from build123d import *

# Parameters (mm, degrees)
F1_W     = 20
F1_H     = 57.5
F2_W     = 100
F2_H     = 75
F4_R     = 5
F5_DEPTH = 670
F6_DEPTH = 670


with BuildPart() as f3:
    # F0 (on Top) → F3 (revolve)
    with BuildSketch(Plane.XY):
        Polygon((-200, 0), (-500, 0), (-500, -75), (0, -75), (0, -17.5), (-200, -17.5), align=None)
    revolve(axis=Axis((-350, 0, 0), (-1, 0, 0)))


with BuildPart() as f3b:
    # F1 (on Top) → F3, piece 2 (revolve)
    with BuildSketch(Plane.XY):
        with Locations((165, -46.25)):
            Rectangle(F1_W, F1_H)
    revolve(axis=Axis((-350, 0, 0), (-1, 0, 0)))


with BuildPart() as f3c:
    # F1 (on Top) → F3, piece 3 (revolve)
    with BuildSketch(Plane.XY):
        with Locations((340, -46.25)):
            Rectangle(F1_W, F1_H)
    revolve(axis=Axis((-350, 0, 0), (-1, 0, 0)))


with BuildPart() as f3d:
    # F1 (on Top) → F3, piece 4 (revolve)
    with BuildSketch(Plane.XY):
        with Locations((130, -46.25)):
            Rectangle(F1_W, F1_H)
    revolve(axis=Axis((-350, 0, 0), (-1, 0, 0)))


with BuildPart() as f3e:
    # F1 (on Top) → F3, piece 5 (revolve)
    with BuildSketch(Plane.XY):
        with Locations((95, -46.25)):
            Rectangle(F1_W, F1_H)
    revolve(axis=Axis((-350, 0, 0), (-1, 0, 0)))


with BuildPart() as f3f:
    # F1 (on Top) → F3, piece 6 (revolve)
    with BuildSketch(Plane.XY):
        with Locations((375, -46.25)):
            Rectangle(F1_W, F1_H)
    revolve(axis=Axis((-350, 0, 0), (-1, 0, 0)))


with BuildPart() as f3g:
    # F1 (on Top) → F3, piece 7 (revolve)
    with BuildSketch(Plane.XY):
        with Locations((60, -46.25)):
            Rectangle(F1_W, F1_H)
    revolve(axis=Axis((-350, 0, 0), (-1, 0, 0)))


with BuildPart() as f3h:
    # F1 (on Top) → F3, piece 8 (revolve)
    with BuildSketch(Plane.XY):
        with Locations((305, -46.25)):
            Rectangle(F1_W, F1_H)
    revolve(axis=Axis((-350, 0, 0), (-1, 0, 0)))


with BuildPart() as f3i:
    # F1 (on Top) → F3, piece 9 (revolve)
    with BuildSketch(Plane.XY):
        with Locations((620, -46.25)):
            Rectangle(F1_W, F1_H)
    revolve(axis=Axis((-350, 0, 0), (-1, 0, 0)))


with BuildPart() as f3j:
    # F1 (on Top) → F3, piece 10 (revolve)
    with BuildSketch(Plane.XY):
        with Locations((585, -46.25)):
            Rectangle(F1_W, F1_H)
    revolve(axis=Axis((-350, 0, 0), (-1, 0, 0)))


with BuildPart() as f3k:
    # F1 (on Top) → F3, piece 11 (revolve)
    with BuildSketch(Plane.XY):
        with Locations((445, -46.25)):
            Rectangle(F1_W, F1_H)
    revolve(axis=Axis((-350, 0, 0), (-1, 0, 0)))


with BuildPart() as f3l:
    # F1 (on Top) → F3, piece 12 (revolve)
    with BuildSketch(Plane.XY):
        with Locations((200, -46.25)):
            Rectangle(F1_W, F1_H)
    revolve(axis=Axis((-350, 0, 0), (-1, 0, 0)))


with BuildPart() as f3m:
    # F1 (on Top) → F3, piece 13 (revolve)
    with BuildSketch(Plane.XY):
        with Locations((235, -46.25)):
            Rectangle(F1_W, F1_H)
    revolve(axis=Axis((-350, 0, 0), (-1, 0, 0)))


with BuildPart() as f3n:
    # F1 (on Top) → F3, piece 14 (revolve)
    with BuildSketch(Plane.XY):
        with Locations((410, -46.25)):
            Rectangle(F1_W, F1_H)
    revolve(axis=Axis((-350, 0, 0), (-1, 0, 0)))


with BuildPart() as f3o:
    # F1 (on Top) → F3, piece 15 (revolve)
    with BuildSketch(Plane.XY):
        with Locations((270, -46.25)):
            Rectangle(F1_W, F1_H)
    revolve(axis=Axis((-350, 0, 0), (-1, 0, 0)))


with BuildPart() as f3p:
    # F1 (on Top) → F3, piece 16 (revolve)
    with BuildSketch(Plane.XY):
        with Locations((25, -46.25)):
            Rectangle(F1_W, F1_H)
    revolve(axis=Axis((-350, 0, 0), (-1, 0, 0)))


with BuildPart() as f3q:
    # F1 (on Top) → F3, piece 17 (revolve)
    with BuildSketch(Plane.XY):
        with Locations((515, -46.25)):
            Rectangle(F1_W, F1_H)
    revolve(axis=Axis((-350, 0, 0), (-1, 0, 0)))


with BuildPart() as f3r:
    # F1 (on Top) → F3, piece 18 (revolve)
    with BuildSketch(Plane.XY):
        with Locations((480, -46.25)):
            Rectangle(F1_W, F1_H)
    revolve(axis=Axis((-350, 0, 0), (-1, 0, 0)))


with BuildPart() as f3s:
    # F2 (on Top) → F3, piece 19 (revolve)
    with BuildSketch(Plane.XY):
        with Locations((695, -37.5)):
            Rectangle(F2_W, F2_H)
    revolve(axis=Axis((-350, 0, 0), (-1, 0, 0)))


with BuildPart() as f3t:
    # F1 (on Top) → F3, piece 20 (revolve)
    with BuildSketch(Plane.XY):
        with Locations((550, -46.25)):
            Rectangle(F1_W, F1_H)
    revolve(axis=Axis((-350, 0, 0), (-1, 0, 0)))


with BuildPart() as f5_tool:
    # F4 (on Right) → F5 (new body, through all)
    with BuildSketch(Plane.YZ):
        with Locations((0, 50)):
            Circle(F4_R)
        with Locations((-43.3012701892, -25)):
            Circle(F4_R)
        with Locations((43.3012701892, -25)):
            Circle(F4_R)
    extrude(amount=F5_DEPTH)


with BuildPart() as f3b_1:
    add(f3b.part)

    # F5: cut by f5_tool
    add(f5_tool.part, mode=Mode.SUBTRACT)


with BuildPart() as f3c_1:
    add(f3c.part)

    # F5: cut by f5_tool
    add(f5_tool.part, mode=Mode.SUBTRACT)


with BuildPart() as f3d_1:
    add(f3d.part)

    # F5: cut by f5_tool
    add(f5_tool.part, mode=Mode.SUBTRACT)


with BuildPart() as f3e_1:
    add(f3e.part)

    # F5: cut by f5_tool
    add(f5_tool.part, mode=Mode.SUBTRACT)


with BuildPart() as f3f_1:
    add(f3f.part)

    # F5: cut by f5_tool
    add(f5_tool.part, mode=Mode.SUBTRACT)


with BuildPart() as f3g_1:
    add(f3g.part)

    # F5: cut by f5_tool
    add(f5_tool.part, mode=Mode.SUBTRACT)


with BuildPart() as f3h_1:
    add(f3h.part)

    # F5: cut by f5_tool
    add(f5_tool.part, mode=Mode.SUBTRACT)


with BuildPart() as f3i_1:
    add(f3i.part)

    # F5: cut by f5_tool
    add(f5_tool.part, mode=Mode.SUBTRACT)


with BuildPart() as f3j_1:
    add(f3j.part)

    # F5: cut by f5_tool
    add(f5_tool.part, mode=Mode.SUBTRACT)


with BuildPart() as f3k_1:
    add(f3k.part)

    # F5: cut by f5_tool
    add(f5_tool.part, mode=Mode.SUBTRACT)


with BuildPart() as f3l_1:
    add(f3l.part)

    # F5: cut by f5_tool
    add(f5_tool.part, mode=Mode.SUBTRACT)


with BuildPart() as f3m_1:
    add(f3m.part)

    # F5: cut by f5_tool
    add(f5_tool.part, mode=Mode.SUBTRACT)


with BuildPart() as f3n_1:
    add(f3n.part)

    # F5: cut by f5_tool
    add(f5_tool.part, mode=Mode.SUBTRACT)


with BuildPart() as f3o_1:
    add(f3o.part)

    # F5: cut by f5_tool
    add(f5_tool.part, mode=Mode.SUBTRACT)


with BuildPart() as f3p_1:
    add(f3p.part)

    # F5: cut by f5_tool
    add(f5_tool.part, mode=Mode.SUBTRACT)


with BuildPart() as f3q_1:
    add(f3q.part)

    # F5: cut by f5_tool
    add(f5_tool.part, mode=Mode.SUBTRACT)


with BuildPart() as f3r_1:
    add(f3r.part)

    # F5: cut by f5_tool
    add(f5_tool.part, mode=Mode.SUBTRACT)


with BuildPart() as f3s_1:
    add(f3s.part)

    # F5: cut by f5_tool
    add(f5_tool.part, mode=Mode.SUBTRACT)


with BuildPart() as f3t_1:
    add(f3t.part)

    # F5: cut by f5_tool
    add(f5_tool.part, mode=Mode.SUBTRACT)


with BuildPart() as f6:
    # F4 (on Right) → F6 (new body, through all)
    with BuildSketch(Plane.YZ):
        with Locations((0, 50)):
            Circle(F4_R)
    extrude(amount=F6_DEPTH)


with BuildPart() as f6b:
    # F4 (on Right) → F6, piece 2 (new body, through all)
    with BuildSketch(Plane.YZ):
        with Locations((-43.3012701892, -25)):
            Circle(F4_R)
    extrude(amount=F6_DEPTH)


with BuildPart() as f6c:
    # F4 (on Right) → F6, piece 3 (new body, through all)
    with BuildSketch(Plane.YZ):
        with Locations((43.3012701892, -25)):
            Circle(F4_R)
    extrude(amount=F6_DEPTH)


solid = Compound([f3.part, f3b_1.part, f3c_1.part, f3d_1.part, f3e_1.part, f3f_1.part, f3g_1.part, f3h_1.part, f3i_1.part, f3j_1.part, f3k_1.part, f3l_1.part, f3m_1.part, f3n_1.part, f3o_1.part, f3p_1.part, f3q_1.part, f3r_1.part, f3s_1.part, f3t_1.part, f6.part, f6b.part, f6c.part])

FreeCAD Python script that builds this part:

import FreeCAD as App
import Part
import Sketcher
from FreeCAD import Vector

doc = App.newDocument("Part")
body = doc.addObject("PartDesign::Body", "Body")

# Sketch on XY plane
sketch1 = body.newObject("Sketcher::SketchObject", "Sketch")
sketch1.AttachmentSupport = (doc.getObject("XY_Plane"), [""])
sketch1.MapMode = "FlatFace"
sketch1.addGeometry([
    Part.LineSegment(Vector(-200, 0, 0), Vector(-500, 0, 0)),  # 0
    Part.LineSegment(Vector(-500, 0, 0), Vector(-500, -75, 0)),  # 1
    Part.LineSegment(Vector(-500, -75, 0), Vector(0, -75, 0)),  # 2
    Part.LineSegment(Vector(0, -75, 0), Vector(0, -17.5, 0)),  # 3
    Part.LineSegment(Vector(0, -17.5, 0), Vector(-200, -17.5, 0)),  # 4
    Part.LineSegment(Vector(-200, -17.5, 0), Vector(-200, 0, 0)),  # 5
], False)
sketch1.addConstraint([
    Sketcher.Constraint("Coincident", 0, 2, 1, 1),
    Sketcher.Constraint("Coincident", 1, 2, 2, 1),
    Sketcher.Constraint("Coincident", 2, 2, 3, 1),
    Sketcher.Constraint("Coincident", 3, 2, 4, 1),
    Sketcher.Constraint("Coincident", 4, 2, 5, 1),
    Sketcher.Constraint("Coincident", 5, 2, 0, 1),
    Sketcher.Constraint("Horizontal", 0),
    Sketcher.Constraint("Vertical", 1),
    Sketcher.Constraint("Horizontal", 2),
    Sketcher.Constraint("Vertical", 3),
    Sketcher.Constraint("Horizontal", 4),
    Sketcher.Constraint("Vertical", 5),
    Sketcher.Constraint("PointOnObject", 0, 2, -1),
    Sketcher.Constraint("PointOnObject", 2, 2, -2),
    Sketcher.Constraint("DistanceX", 0, 2, 0, 1, 300.0),
    Sketcher.Constraint("DistanceX", 2, 1, 2, 2, 500.0),
    Sketcher.Constraint("DistanceY", 1, 2, 1, 1, 75.0),
    Sketcher.Constraint("DistanceY", 3, 1, 3, 2, 57.5),
])
revolution = body.newObject("PartDesign::Revolution", "Revolution")
revolution.Profile = sketch1
revolution.ReferenceAxis = (sketch1, ["H_Axis"])
revolution.Angle = 360
body2 = doc.addObject("PartDesign::Body", "Body001")

# Sketch on XY plane
sketch2 = body2.newObject("Sketcher::SketchObject", "Sketch001")
sketch2.AttachmentSupport = (doc.getObject("XY_Plane001"), [""])
sketch2.MapMode = "FlatFace"
sketch2.addGeometry([
    Part.LineSegment(Vector(155, -17.5, 0), Vector(155, -75, 0)),
    Part.LineSegment(Vector(155, -75, 0), Vector(175, -75, 0)),
    Part.LineSegment(Vector(175, -75, 0), Vector(175, -17.5, 0)),
    Part.LineSegment(Vector(175, -17.5, 0), Vector(155, -17.5, 0)),
], False)
sketch2.addConstraint([
    Sketcher.Constraint("Coincident", 0, 2, 1, 1),
    Sketcher.Constraint("Coincident", 1, 2, 2, 1),
    Sketcher.Constraint("Coincident", 2, 2, 3, 1),
    Sketcher.Constraint("Coincident", 3, 2, 0, 1),
    Sketcher.Constraint("Vertical", 0),
    Sketcher.Constraint("Horizontal", 1),
    Sketcher.Constraint("Vertical", 2),
    Sketcher.Constraint("Horizontal", 3),
    Sketcher.Constraint("DistanceX", 1, 1, 1, 2, 20.0),
    Sketcher.Constraint("DistanceY", 0, 2, 0, 1, 57.5),
    Sketcher.Constraint("DistanceX", -1, 1, 0, 2, 155.0),
    Sketcher.Constraint("DistanceY", 0, 2, -1, 1, 75.0),
])
revolution2 = body2.newObject("PartDesign::Revolution", "Revolution001")
revolution2.Profile = sketch2
revolution2.ReferenceAxis = (sketch2, ["H_Axis"])
revolution2.Angle = 360
body3 = doc.addObject("PartDesign::Body", "Body002")

# Sketch on XY plane
sketch3 = body3.newObject("Sketcher::SketchObject", "Sketch002")
sketch3.AttachmentSupport = (doc.getObject("XY_Plane002"), [""])
sketch3.MapMode = "FlatFace"
sketch3.addGeometry([
    Part.LineSegment(Vector(330, -17.5, 0), Vector(330, -75, 0)),
    Part.LineSegment(Vector(330, -75, 0), Vector(350, -75, 0)),
    Part.LineSegment(Vector(350, -75, 0), Vector(350, -17.5, 0)),
    Part.LineSegment(Vector(350, -17.5, 0), Vector(330, -17.5, 0)),
], False)
sketch3.addConstraint([
    Sketcher.Constraint("Coincident", 0, 2, 1, 1),
    Sketcher.Constraint("Coincident", 1, 2, 2, 1),
    Sketcher.Constraint("Coincident", 2, 2, 3, 1),
    Sketcher.Constraint("Coincident", 3, 2, 0, 1),
    Sketcher.Constraint("Vertical", 0),
    Sketcher.Constraint("Horizontal", 1),
    Sketcher.Constraint("Vertical", 2),
    Sketcher.Constraint("Horizontal", 3),
    Sketcher.Constraint("DistanceX", 1, 1, 1, 2, 20.0),
    Sketcher.Constraint("DistanceY", 0, 2, 0, 1, 57.5),
    Sketcher.Constraint("DistanceX", -1, 1, 0, 2, 330.0),
    Sketcher.Constraint("DistanceY", 0, 2, -1, 1, 75.0),
])
revolution3 = body3.newObject("PartDesign::Revolution", "Revolution002")
revolution3.Profile = sketch3
revolution3.ReferenceAxis = (sketch3, ["H_Axis"])
revolution3.Angle = 360
body4 = doc.addObject("PartDesign::Body", "Body003")

# Sketch on XY plane
sketch4 = body4.newObject("Sketcher::SketchObject", "Sketch003")
sketch4.AttachmentSupport = (doc.getObject("XY_Plane003"), [""])
sketch4.MapMode = "FlatFace"
sketch4.addGeometry([
    Part.LineSegment(Vector(120, -17.5, 0), Vector(120, -75, 0)),
    Part.LineSegment(Vector(120, -75, 0), Vector(140, -75, 0)),
    Part.LineSegment(Vector(140, -75, 0), Vector(140, -17.5, 0)),
    Part.LineSegment(Vector(140, -17.5, 0), Vector(120, -17.5, 0)),
], False)
sketch4.addConstraint([
    Sketcher.Constraint("Coincident", 0, 2, 1, 1),
    Sketcher.Constraint("Coincident", 1, 2, 2, 1),
    Sketcher.Constraint("Coincident", 2, 2, 3, 1),
    Sketcher.Constraint("Coincident", 3, 2, 0, 1),
    Sketcher.Constraint("Vertical", 0),
    Sketcher.Constraint("Horizontal", 1),
    Sketcher.Constraint("Vertical", 2),
    Sketcher.Constraint("Horizontal", 3),
    Sketcher.Constraint("DistanceX", 1, 1, 1, 2, 20.0),
    Sketcher.Constraint("DistanceY", 0, 2, 0, 1, 57.5),
    Sketcher.Constraint("DistanceX", -1, 1, 0, 2, 120.0),
    Sketcher.Constraint("DistanceY", 0, 2, -1, 1, 75.0),
])
revolution4 = body4.newObject("PartDesign::Revolution", "Revolution003")
revolution4.Profile = sketch4
revolution4.ReferenceAxis = (sketch4, ["H_Axis"])
revolution4.Angle = 360
body5 = doc.addObject("PartDesign::Body", "Body004")

# Sketch on XY plane
sketch5 = body5.newObject("Sketcher::SketchObject", "Sketch004")
sketch5.AttachmentSupport = (doc.getObject("XY_Plane004"), [""])
sketch5.MapMode = "FlatFace"
sketch5.addGeometry([
    Part.LineSegment(Vector(85, -17.5, 0), Vector(85, -75, 0)),
    Part.LineSegment(Vector(85, -75, 0), Vector(105, -75, 0)),
    Part.LineSegment(Vector(105, -75, 0), Vector(105, -17.5, 0)),
    Part.LineSegment(Vector(105, -17.5, 0), Vector(85, -17.5, 0)),
], False)
sketch5.addConstraint([
    Sketcher.Constraint("Coincident", 0, 2, 1, 1),
    Sketcher.Constraint("Coincident", 1, 2, 2, 1),
    Sketcher.Constraint("Coincident", 2, 2, 3, 1),
    Sketcher.Constraint("Coincident", 3, 2, 0, 1),
    Sketcher.Constraint("Vertical", 0),
    Sketcher.Constraint("Horizontal", 1),
    Sketcher.Constraint("Vertical", 2),
    Sketcher.Constraint("Horizontal", 3),
    Sketcher.Constraint("DistanceX", 1, 1, 1, 2, 20.0),
    Sketcher.Constraint("DistanceY", 0, 2, 0, 1, 57.5),
    Sketcher.Constraint("DistanceX", -1, 1, 0, 2, 85.0),
    Sketcher.Constraint("DistanceY", 0, 2, -1, 1, 75.0),
])
revolution5 = body5.newObject("PartDesign::Revolution", "Revolution004")
revolution5.Profile = sketch5
revolution5.ReferenceAxis = (sketch5, ["H_Axis"])
revolution5.Angle = 360
body6 = doc.addObject("PartDesign::Body", "Body005")

# Sketch on XY plane
sketch6 = body6.newObject("Sketcher::SketchObject", "Sketch005")
sketch6.AttachmentSupport = (doc.getObject("XY_Plane005"), [""])
sketch6.MapMode = "FlatFace"
sketch6.addGeometry([
    Part.LineSegment(Vector(365, -17.5, 0), Vector(365, -75, 0)),
    Part.LineSegment(Vector(365, -75, 0), Vector(385, -75, 0)),
    Part.LineSegment(Vector(385, -75, 0), Vector(385, -17.5, 0)),
    Part.LineSegment(Vector(385, -17.5, 0), Vector(365, -17.5, 0)),
], False)
sketch6.addConstraint([
    Sketcher.Constraint("Coincident", 0, 2, 1, 1),
    Sketcher.Constraint("Coincident", 1, 2, 2, 1),
    Sketcher.Constraint("Coincident", 2, 2, 3, 1),
    Sketcher.Constraint("Coincident", 3, 2, 0, 1),
    Sketcher.Constraint("Vertical", 0),
    Sketcher.Constraint("Horizontal", 1),
    Sketcher.Constraint("Vertical", 2),
    Sketcher.Constraint("Horizontal", 3),
    Sketcher.Constraint("DistanceX", 1, 1, 1, 2, 20.0),
    Sketcher.Constraint("DistanceY", 0, 2, 0, 1, 57.5),
    Sketcher.Constraint("DistanceX", -1, 1, 0, 2, 365.0),
    Sketcher.Constraint("DistanceY", 0, 2, -1, 1, 75.0),
])
revolution6 = body6.newObject("PartDesign::Revolution", "Revolution005")
revolution6.Profile = sketch6
revolution6.ReferenceAxis = (sketch6, ["H_Axis"])
revolution6.Angle = 360
body7 = doc.addObject("PartDesign::Body", "Body006")

# Sketch on XY plane
sketch7 = body7.newObject("Sketcher::SketchObject", "Sketch006")
sketch7.AttachmentSupport = (doc.getObject("XY_Plane006"), [""])
sketch7.MapMode = "FlatFace"
sketch7.addGeometry([
    Part.LineSegment(Vector(50, -17.5, 0), Vector(50, -75, 0)),
    Part.LineSegment(Vector(50, -75, 0), Vector(70, -75, 0)),
    Part.LineSegment(Vector(70, -75, 0), Vector(70, -17.5, 0)),
    Part.LineSegment(Vector(70, -17.5, 0), Vector(50, -17.5, 0)),
], False)
sketch7.addConstraint([
    Sketcher.Constraint("Coincident", 0, 2, 1, 1),
    Sketcher.Constraint("Coincident", 1, 2, 2, 1),
    Sketcher.Constraint("Coincident", 2, 2, 3, 1),
    Sketcher.Constraint("Coincident", 3, 2, 0, 1),
    Sketcher.Constraint("Vertical", 0),
    Sketcher.Constraint("Horizontal", 1),
    Sketcher.Constraint("Vertical", 2),
    Sketcher.Constraint("Horizontal", 3),
    Sketcher.Constraint("DistanceX", 1, 1, 1, 2, 20.0),
    Sketcher.Constraint("DistanceY", 0, 2, 0, 1, 57.5),
    Sketcher.Constraint("DistanceX", -1, 1, 0, 2, 50.0),
    Sketcher.Constraint("DistanceY", 0, 2, -1, 1, 75.0),
])
revolution7 = body7.newObject("PartDesign::Revolution", "Revolution006")
revolution7.Profile = sketch7
revolution7.ReferenceAxis = (sketch7, ["H_Axis"])
revolution7.Angle = 360
body8 = doc.addObject("PartDesign::Body", "Body007")

# Sketch on XY plane
sketch8 = body8.newObject("Sketcher::SketchObject", "Sketch007")
sketch8.AttachmentSupport = (doc.getObject("XY_Plane007"), [""])
sketch8.MapMode = "FlatFace"
sketch8.addGeometry([
    Part.LineSegment(Vector(295, -17.5, 0), Vector(295, -75, 0)),
    Part.LineSegment(Vector(295, -75, 0), Vector(315, -75, 0)),
    Part.LineSegment(Vector(315, -75, 0), Vector(315, -17.5, 0)),
    Part.LineSegment(Vector(315, -17.5, 0), Vector(295, -17.5, 0)),
], False)
sketch8.addConstraint([
    Sketcher.Constraint("Coincident", 0, 2, 1, 1),
    Sketcher.Constraint("Coincident", 1, 2, 2, 1),
    Sketcher.Constraint("Coincident", 2, 2, 3, 1),
    Sketcher.Constraint("Coincident", 3, 2, 0, 1),
    Sketcher.Constraint("Vertical", 0),
    Sketcher.Constraint("Horizontal", 1),
    Sketcher.Constraint("Vertical", 2),
    Sketcher.Constraint("Horizontal", 3),
    Sketcher.Constraint("DistanceX", 1, 1, 1, 2, 20.0),
    Sketcher.Constraint("DistanceY", 0, 2, 0, 1, 57.5),
    Sketcher.Constraint("DistanceX", -1, 1, 0, 2, 295.0),
    Sketcher.Constraint("DistanceY", 0, 2, -1, 1, 75.0),
])
revolution8 = body8.newObject("PartDesign::Revolution", "Revolution007")
revolution8.Profile = sketch8
revolution8.ReferenceAxis = (sketch8, ["H_Axis"])
revolution8.Angle = 360
body9 = doc.addObject("PartDesign::Body", "Body008")

# Sketch on XY plane
sketch9 = body9.newObject("Sketcher::SketchObject", "Sketch008")
sketch9.AttachmentSupport = (doc.getObject("XY_Plane008"), [""])
sketch9.MapMode = "FlatFace"
sketch9.addGeometry([
    Part.LineSegment(Vector(610, -17.5, 0), Vector(610, -75, 0)),
    Part.LineSegment(Vector(610, -75, 0), Vector(630, -75, 0)),
    Part.LineSegment(Vector(630, -75, 0), Vector(630, -17.5, 0)),
    Part.LineSegment(Vector(630, -17.5, 0), Vector(610, -17.5, 0)),
], False)
sketch9.addConstraint([
    Sketcher.Constraint("Coincident", 0, 2, 1, 1),
    Sketcher.Constraint("Coincident", 1, 2, 2, 1),
    Sketcher.Constraint("Coincident", 2, 2, 3, 1),
    Sketcher.Constraint("Coincident", 3, 2, 0, 1),
    Sketcher.Constraint("Vertical", 0),
    Sketcher.Constraint("Horizontal", 1),
    Sketcher.Constraint("Vertical", 2),
    Sketcher.Constraint("Horizontal", 3),
    Sketcher.Constraint("DistanceX", 1, 1, 1, 2, 20.0),
    Sketcher.Constraint("DistanceY", 0, 2, 0, 1, 57.5),
    Sketcher.Constraint("DistanceX", -1, 1, 0, 2, 610.0),
    Sketcher.Constraint("DistanceY", 0, 2, -1, 1, 75.0),
])
revolution9 = body9.newObject("PartDesign::Revolution", "Revolution008")
revolution9.Profile = sketch9
revolution9.ReferenceAxis = (sketch9, ["H_Axis"])
revolution9.Angle = 360
body10 = doc.addObject("PartDesign::Body", "Body009")

# Sketch on XY plane
sketch10 = body10.newObject("Sketcher::SketchObject", "Sketch009")
sketch10.AttachmentSupport = (doc.getObject("XY_Plane009"), [""])
sketch10.MapMode = "FlatFace"
sketch10.addGeometry([
    Part.LineSegment(Vector(575, -17.5, 0), Vector(575, -75, 0)),
    Part.LineSegment(Vector(575, -75, 0), Vector(595, -75, 0)),
    Part.LineSegment(Vector(595, -75, 0), Vector(595, -17.5, 0)),
    Part.LineSegment(Vector(595, -17.5, 0), Vector(575, -17.5, 0)),
], False)
sketch10.addConstraint([
    Sketcher.Constraint("Coincident", 0, 2, 1, 1),
    Sketcher.Constraint("Coincident", 1, 2, 2, 1),
    Sketcher.Constraint("Coincident", 2, 2, 3, 1),
    Sketcher.Constraint("Coincident", 3, 2, 0, 1),
    Sketcher.Constraint("Vertical", 0),
    Sketcher.Constraint("Horizontal", 1),
    Sketcher.Constraint("Vertical", 2),
    Sketcher.Constraint("Horizontal", 3),
    Sketcher.Constraint("DistanceX", 1, 1, 1, 2, 20.0),
    Sketcher.Constraint("DistanceY", 0, 2, 0, 1, 57.5),
    Sketcher.Constraint("DistanceX", -1, 1, 0, 2, 575.0),
    Sketcher.Constraint("DistanceY", 0, 2, -1, 1, 75.0),
])
revolution10 = body10.newObject("PartDesign::Revolution", "Revolution009")
revolution10.Profile = sketch10
revolution10.ReferenceAxis = (sketch10, ["H_Axis"])
revolution10.Angle = 360
body11 = doc.addObject("PartDesign::Body", "Body010")

# Sketch on XY plane
sketch11 = body11.newObject("Sketcher::SketchObject", "Sketch010")
sketch11.AttachmentSupport = (doc.getObject("XY_Plane010"), [""])
sketch11.MapMode = "FlatFace"
sketch11.addGeometry([
    Part.LineSegment(Vector(435, -17.5, 0), Vector(435, -75, 0)),
    Part.LineSegment(Vector(435, -75, 0), Vector(455, -75, 0)),
    Part.LineSegment(Vector(455, -75, 0), Vector(455, -17.5, 0)),
    Part.LineSegment(Vector(455, -17.5, 0), Vector(435, -17.5, 0)),
], False)
sketch11.addConstraint([
    Sketcher.Constraint("Coincident", 0, 2, 1, 1),
    Sketcher.Constraint("Coincident", 1, 2, 2, 1),
    Sketcher.Constraint("Coincident", 2, 2, 3, 1),
    Sketcher.Constraint("Coincident", 3, 2, 0, 1),
    Sketcher.Constraint("Vertical", 0),
    Sketcher.Constraint("Horizontal", 1),
    Sketcher.Constraint("Vertical", 2),
    Sketcher.Constraint("Horizontal", 3),
    Sketcher.Constraint("DistanceX", 1, 1, 1, 2, 20.0),
    Sketcher.Constraint("DistanceY", 0, 2, 0, 1, 57.5),
    Sketcher.Constraint("DistanceX", -1, 1, 0, 2, 435.0),
    Sketcher.Constraint("DistanceY", 0, 2, -1, 1, 75.0),
])
revolution11 = body11.newObject("PartDesign::Revolution", "Revolution010")
revolution11.Profile = sketch11
revolution11.ReferenceAxis = (sketch11, ["H_Axis"])
revolution11.Angle = 360
body12 = doc.addObject("PartDesign::Body", "Body011")

# Sketch on XY plane
sketch12 = body12.newObject("Sketcher::SketchObject", "Sketch011")
sketch12.AttachmentSupport = (doc.getObject("XY_Plane011"), [""])
sketch12.MapMode = "FlatFace"
sketch12.addGeometry([
    Part.LineSegment(Vector(190, -17.5, 0), Vector(190, -75, 0)),
    Part.LineSegment(Vector(190, -75, 0), Vector(210, -75, 0)),
    Part.LineSegment(Vector(210, -75, 0), Vector(210, -17.5, 0)),
    Part.LineSegment(Vector(210, -17.5, 0), Vector(190, -17.5, 0)),
], False)
sketch12.addConstraint([
    Sketcher.Constraint("Coincident", 0, 2, 1, 1),
    Sketcher.Constraint("Coincident", 1, 2, 2, 1),
    Sketcher.Constraint("Coincident", 2, 2, 3, 1),
    Sketcher.Constraint("Coincident", 3, 2, 0, 1),
    Sketcher.Constraint("Vertical", 0),
    Sketcher.Constraint("Horizontal", 1),
    Sketcher.Constraint("Vertical", 2),
    Sketcher.Constraint("Horizontal", 3),
    Sketcher.Constraint("DistanceX", 1, 1, 1, 2, 20.0),
    Sketcher.Constraint("DistanceY", 0, 2, 0, 1, 57.5),
    Sketcher.Constraint("DistanceX", -1, 1, 0, 2, 190.0),
    Sketcher.Constraint("DistanceY", 0, 2, -1, 1, 75.0),
])
revolution12 = body12.newObject("PartDesign::Revolution", "Revolution011")
revolution12.Profile = sketch12
revolution12.ReferenceAxis = (sketch12, ["H_Axis"])
revolution12.Angle = 360
body13 = doc.addObject("PartDesign::Body", "Body012")

# Sketch on XY plane
sketch13 = body13.newObject("Sketcher::SketchObject", "Sketch012")
sketch13.AttachmentSupport = (doc.getObject("XY_Plane012"), [""])
sketch13.MapMode = "FlatFace"
sketch13.addGeometry([
    Part.LineSegment(Vector(225, -17.5, 0), Vector(225, -75, 0)),
    Part.LineSegment(Vector(225, -75, 0), Vector(245, -75, 0)),
    Part.LineSegment(Vector(245, -75, 0), Vector(245, -17.5, 0)),
    Part.LineSegment(Vector(245, -17.5, 0), Vector(225, -17.5, 0)),
], False)
sketch13.addConstraint([
    Sketcher.Constraint("Coincident", 0, 2, 1, 1),
    Sketcher.Constraint("Coincident", 1, 2, 2, 1),
    Sketcher.Constraint("Coincident", 2, 2, 3, 1),
    Sketcher.Constraint("Coincident", 3, 2, 0, 1),
    Sketcher.Constraint("Vertical", 0),
    Sketcher.Constraint("Horizontal", 1),
    Sketcher.Constraint("Vertical", 2),
    Sketcher.Constraint("Horizontal", 3),
    Sketcher.Constraint("DistanceX", 1, 1, 1, 2, 20.0),
    Sketcher.Constraint("DistanceY", 0, 2, 0, 1, 57.5),
    Sketcher.Constraint("DistanceX", -1, 1, 0, 2, 225.0),
    Sketcher.Constraint("DistanceY", 0, 2, -1, 1, 75.0),
])
revolution13 = body13.newObject("PartDesign::Revolution", "Revolution012")
revolution13.Profile = sketch13
revolution13.ReferenceAxis = (sketch13, ["H_Axis"])
revolution13.Angle = 360
body14 = doc.addObject("PartDesign::Body", "Body013")

# Sketch on XY plane
sketch14 = body14.newObject("Sketcher::SketchObject", "Sketch013")
sketch14.AttachmentSupport = (doc.getObject("XY_Plane013"), [""])
sketch14.MapMode = "FlatFace"
sketch14.addGeometry([
    Part.LineSegment(Vector(400, -17.5, 0), Vector(400, -75, 0)),
    Part.LineSegment(Vector(400, -75, 0), Vector(420, -75, 0)),
    Part.LineSegment(Vector(420, -75, 0), Vector(420, -17.5, 0)),
    Part.LineSegment(Vector(420, -17.5, 0), Vector(400, -17.5, 0)),
], False)
sketch14.addConstraint([
    Sketcher.Constraint("Coincident", 0, 2, 1, 1),
    Sketcher.Constraint("Coincident", 1, 2, 2, 1),
    Sketcher.Constraint("Coincident", 2, 2, 3, 1),
    Sketcher.Constraint("Coincident", 3, 2, 0, 1),
    Sketcher.Constraint("Vertical", 0),
    Sketcher.Constraint("Horizontal", 1),
    Sketcher.Constraint("Vertical", 2),
    Sketcher.Constraint("Horizontal", 3),
    Sketcher.Constraint("DistanceX", 1, 1, 1, 2, 20.0),
    Sketcher.Constraint("DistanceY", 0, 2, 0, 1, 57.5),
    Sketcher.Constraint("DistanceX", -1, 1, 0, 2, 400.0),
    Sketcher.Constraint("DistanceY", 0, 2, -1, 1, 75.0),
])
revolution14 = body14.newObject("PartDesign::Revolution", "Revolution013")
revolution14.Profile = sketch14
revolution14.ReferenceAxis = (sketch14, ["H_Axis"])
revolution14.Angle = 360
body15 = doc.addObject("PartDesign::Body", "Body014")

# Sketch on XY plane
sketch15 = body15.newObject("Sketcher::SketchObject", "Sketch014")
sketch15.AttachmentSupport = (doc.getObject("XY_Plane014"), [""])
sketch15.MapMode = "FlatFace"
sketch15.addGeometry([
    Part.LineSegment(Vector(260, -17.5, 0), Vector(260, -75, 0)),
    Part.LineSegment(Vector(260, -75, 0), Vector(280, -75, 0)),
    Part.LineSegment(Vector(280, -75, 0), Vector(280, -17.5, 0)),
    Part.LineSegment(Vector(280, -17.5, 0), Vector(260, -17.5, 0)),
], False)
sketch15.addConstraint([
    Sketcher.Constraint("Coincident", 0, 2, 1, 1),
    Sketcher.Constraint("Coincident", 1, 2, 2, 1),
    Sketcher.Constraint("Coincident", 2, 2, 3, 1),
    Sketcher.Constraint("Coincident", 3, 2, 0, 1),
    Sketcher.Constraint("Vertical", 0),
    Sketcher.Constraint("Horizontal", 1),
    Sketcher.Constraint("Vertical", 2),
    Sketcher.Constraint("Horizontal", 3),
    Sketcher.Constraint("DistanceX", 1, 1, 1, 2, 20.0),
    Sketcher.Constraint("DistanceY", 0, 2, 0, 1, 57.5),
    Sketcher.Constraint("DistanceX", -1, 1, 0, 2, 260.0),
    Sketcher.Constraint("DistanceY", 0, 2, -1, 1, 75.0),
])
revolution15 = body15.newObject("PartDesign::Revolution", "Revolution014")
revolution15.Profile = sketch15
revolution15.ReferenceAxis = (sketch15, ["H_Axis"])
revolution15.Angle = 360
body16 = doc.addObject("PartDesign::Body", "Body015")

# Sketch on XY plane
sketch16 = body16.newObject("Sketcher::SketchObject", "Sketch015")
sketch16.AttachmentSupport = (doc.getObject("XY_Plane015"), [""])
sketch16.MapMode = "FlatFace"
sketch16.addGeometry([
    Part.LineSegment(Vector(15, -17.5, 0), Vector(15, -75, 0)),
    Part.LineSegment(Vector(15, -75, 0), Vector(35, -75, 0)),
    Part.LineSegment(Vector(35, -75, 0), Vector(35, -17.5, 0)),
    Part.LineSegment(Vector(35, -17.5, 0), Vector(15, -17.5, 0)),
], False)
sketch16.addConstraint([
    Sketcher.Constraint("Coincident", 0, 2, 1, 1),
    Sketcher.Constraint("Coincident", 1, 2, 2, 1),
    Sketcher.Constraint("Coincident", 2, 2, 3, 1),
    Sketcher.Constraint("Coincident", 3, 2, 0, 1),
    Sketcher.Constraint("Vertical", 0),
    Sketcher.Constraint("Horizontal", 1),
    Sketcher.Constraint("Vertical", 2),
    Sketcher.Constraint("Horizontal", 3),
    Sketcher.Constraint("DistanceX", 1, 1, 1, 2, 20.0),
    Sketcher.Constraint("DistanceY", 0, 2, 0, 1, 57.5),
    Sketcher.Constraint("DistanceX", -1, 1, 0, 2, 15.0),
    Sketcher.Constraint("DistanceY", 0, 2, -1, 1, 75.0),
])
revolution16 = body16.newObject("PartDesign::Revolution", "Revolution015")
revolution16.Profile = sketch16
revolution16.ReferenceAxis = (sketch16, ["H_Axis"])
revolution16.Angle = 360
body17 = doc.addObject("PartDesign::Body", "Body016")

# Sketch on XY plane
sketch17 = body17.newObject("Sketcher::SketchObject", "Sketch016")
sketch17.AttachmentSupport = (doc.getObject("XY_Plane016"), [""])
sketch17.MapMode = "FlatFace"
sketch17.addGeometry([
    Part.LineSegment(Vector(505, -17.5, 0), Vector(505, -75, 0)),
    Part.LineSegment(Vector(505, -75, 0), Vector(525, -75, 0)),
    Part.LineSegment(Vector(525, -75, 0), Vector(525, -17.5, 0)),
    Part.LineSegment(Vector(525, -17.5, 0), Vector(505, -17.5, 0)),
], False)
sketch17.addConstraint([
    Sketcher.Constraint("Coincident", 0, 2, 1, 1),
    Sketcher.Constraint("Coincident", 1, 2, 2, 1),
    Sketcher.Constraint("Coincident", 2, 2, 3, 1),
    Sketcher.Constraint("Coincident", 3, 2, 0, 1),
    Sketcher.Constraint("Vertical", 0),
    Sketcher.Constraint("Horizontal", 1),
    Sketcher.Constraint("Vertical", 2),
    Sketcher.Constraint("Horizontal", 3),
    Sketcher.Constraint("DistanceX", 1, 1, 1, 2, 20.0),
    Sketcher.Constraint("DistanceY", 0, 2, 0, 1, 57.5),
    Sketcher.Constraint("DistanceX", -1, 1, 0, 2, 505.0),
    Sketcher.Constraint("DistanceY", 0, 2, -1, 1, 75.0),
])
revolution17 = body17.newObject("PartDesign::Revolution", "Revolution016")
revolution17.Profile = sketch17
revolution17.ReferenceAxis = (sketch17, ["H_Axis"])
revolution17.Angle = 360
body18 = doc.addObject("PartDesign::Body", "Body017")

# Sketch on XY plane
sketch18 = body18.newObject("Sketcher::SketchObject", "Sketch017")
sketch18.AttachmentSupport = (doc.getObject("XY_Plane017"), [""])
sketch18.MapMode = "FlatFace"
sketch18.addGeometry([
    Part.LineSegment(Vector(470, -17.5, 0), Vector(470, -75, 0)),
    Part.LineSegment(Vector(470, -75, 0), Vector(490, -75, 0)),
    Part.LineSegment(Vector(490, -75, 0), Vector(490, -17.5, 0)),
    Part.LineSegment(Vector(490, -17.5, 0), Vector(470, -17.5, 0)),
], False)
sketch18.addConstraint([
    Sketcher.Constraint("Coincident", 0, 2, 1, 1),
    Sketcher.Constraint("Coincident", 1, 2, 2, 1),
    Sketcher.Constraint("Coincident", 2, 2, 3, 1),
    Sketcher.Constraint("Coincident", 3, 2, 0, 1),
    Sketcher.Constraint("Vertical", 0),
    Sketcher.Constraint("Horizontal", 1),
    Sketcher.Constraint("Vertical", 2),
    Sketcher.Constraint("Horizontal", 3),
    Sketcher.Constraint("DistanceX", 1, 1, 1, 2, 20.0),
    Sketcher.Constraint("DistanceY", 0, 2, 0, 1, 57.5),
    Sketcher.Constraint("DistanceX", -1, 1, 0, 2, 470.0),
    Sketcher.Constraint("DistanceY", 0, 2, -1, 1, 75.0),
])
revolution18 = body18.newObject("PartDesign::Revolution", "Revolution017")
revolution18.Profile = sketch18
revolution18.ReferenceAxis = (sketch18, ["H_Axis"])
revolution18.Angle = 360
body19 = doc.addObject("PartDesign::Body", "Body018")

# Sketch on XY plane
sketch19 = body19.newObject("Sketcher::SketchObject", "Sketch018")
sketch19.AttachmentSupport = (doc.getObject("XY_Plane018"), [""])
sketch19.MapMode = "FlatFace"
sketch19.addGeometry([
    Part.LineSegment(Vector(645, 0, 0), Vector(645, -75, 0)),
    Part.LineSegment(Vector(645, -75, 0), Vector(745, -75, 0)),
    Part.LineSegment(Vector(745, -75, 0), Vector(745, 0, 0)),
    Part.LineSegment(Vector(745, 0, 0), Vector(645, 0, 0)),
], False)
sketch19.addConstraint([
    Sketcher.Constraint("Coincident", 0, 2, 1, 1),
    Sketcher.Constraint("Coincident", 1, 2, 2, 1),
    Sketcher.Constraint("Coincident", 2, 2, 3, 1),
    Sketcher.Constraint("Coincident", 3, 2, 0, 1),
    Sketcher.Constraint("Vertical", 0),
    Sketcher.Constraint("Horizontal", 1),
    Sketcher.Constraint("Vertical", 2),
    Sketcher.Constraint("Horizontal", 3),
    Sketcher.Constraint("PointOnObject", 2, 2, -1),
    Sketcher.Constraint("DistanceX", 1, 1, 1, 2, 100.0),
    Sketcher.Constraint("DistanceY", 0, 2, 0, 1, 75.0),
    Sketcher.Constraint("DistanceX", -1, 1, 0, 2, 645.0),
])
revolution19 = body19.newObject("PartDesign::Revolution", "Revolution018")
revolution19.Profile = sketch19
revolution19.ReferenceAxis = (sketch19, ["H_Axis"])
revolution19.Angle = 360
body20 = doc.addObject("PartDesign::Body", "Body019")

# Sketch on XY plane
sketch20 = body20.newObject("Sketcher::SketchObject", "Sketch019")
sketch20.AttachmentSupport = (doc.getObject("XY_Plane019"), [""])
sketch20.MapMode = "FlatFace"
sketch20.addGeometry([
    Part.LineSegment(Vector(540, -17.5, 0), Vector(540, -75, 0)),
    Part.LineSegment(Vector(540, -75, 0), Vector(560, -75, 0)),
    Part.LineSegment(Vector(560, -75, 0), Vector(560, -17.5, 0)),
    Part.LineSegment(Vector(560, -17.5, 0), Vector(540, -17.5, 0)),
], False)
sketch20.addConstraint([
    Sketcher.Constraint("Coincident", 0, 2, 1, 1),
    Sketcher.Constraint("Coincident", 1, 2, 2, 1),
    Sketcher.Constraint("Coincident", 2, 2, 3, 1),
    Sketcher.Constraint("Coincident", 3, 2, 0, 1),
    Sketcher.Constraint("Vertical", 0),
    Sketcher.Constraint("Horizontal", 1),
    Sketcher.Constraint("Vertical", 2),
    Sketcher.Constraint("Horizontal", 3),
    Sketcher.Constraint("DistanceX", 1, 1, 1, 2, 20.0),
    Sketcher.Constraint("DistanceY", 0, 2, 0, 1, 57.5),
    Sketcher.Constraint("DistanceX", -1, 1, 0, 2, 540.0),
    Sketcher.Constraint("DistanceY", 0, 2, -1, 1, 75.0),
])
revolution20 = body20.newObject("PartDesign::Revolution", "Revolution019")
revolution20.Profile = sketch20
revolution20.ReferenceAxis = (sketch20, ["H_Axis"])
revolution20.Angle = 360
body21 = doc.addObject("PartDesign::Body", "Body020")
body21.AllowCompound = True

# Sketch on YZ plane
sketch21 = body21.newObject("Sketcher::SketchObject", "Sketch020")
sketch21.AttachmentSupport = (doc.getObject("YZ_Plane020"), [""])
sketch21.MapMode = "FlatFace"
sketch21.addGeometry([
    Part.Circle(Vector(0, 50, 0), Vector(0, 0, 1), 5),
    Part.Circle(Vector(-43.30127, -25, 0), Vector(0, 0, 1), 5),
    Part.Circle(Vector(43.30127, -25, 0), Vector(0, 0, 1), 5),
], False)
sketch21.addConstraint([
    Sketcher.Constraint("Equal", 0, 1),
    Sketcher.Constraint("Equal", 1, 2),
    Sketcher.Constraint("Symmetric", 1, 3, 2, 3, -2),
    Sketcher.Constraint("PointOnObject", 0, 3, -2),
    Sketcher.Constraint("Diameter", 0, 10.0),
    Sketcher.Constraint("DistanceY", -1, 1, 0, 3, 50.0),
    Sketcher.Constraint("DistanceY", 1, 3, -1, 1, 25.0),
    Sketcher.Constraint("DistanceX", 1, 3, -1, 1, 43.30127),
])
pad1 = body21.newObject("PartDesign::Pad", "Pad")
pad1.Profile = sketch21
pad1.Length = 670
doc.recompute()

body22 = doc.addObject("PartDesign::Body", "Body021")
body22.BaseFeature = body21
boolean = body2.newObject("PartDesign::Boolean", "Boolean")
boolean.Type = "Cut"
boolean.addObjects([body22])
doc.recompute()

body23 = doc.addObject("PartDesign::Body", "Body022")
body23.BaseFeature = body21
boolean2 = body3.newObject("PartDesign::Boolean", "Boolean001")
boolean2.Type = "Cut"
boolean2.addObjects([body23])
doc.recompute()

body24 = doc.addObject("PartDesign::Body", "Body023")
body24.BaseFeature = body21
boolean3 = body4.newObject("PartDesign::Boolean", "Boolean002")
boolean3.Type = "Cut"
boolean3.addObjects([body24])
doc.recompute()

body25 = doc.addObject("PartDesign::Body", "Body024")
body25.BaseFeature = body21
boolean4 = body5.newObject("PartDesign::Boolean", "Boolean003")
boolean4.Type = "Cut"
boolean4.addObjects([body25])
doc.recompute()

body26 = doc.addObject("PartDesign::Body", "Body025")
body26.BaseFeature = body21
boolean5 = body6.newObject("PartDesign::Boolean", "Boolean004")
boolean5.Type = "Cut"
boolean5.addObjects([body26])
doc.recompute()

body27 = doc.addObject("PartDesign::Body", "Body026")
body27.BaseFeature = body21
boolean6 = body7.newObject("PartDesign::Boolean", "Boolean005")
boolean6.Type = "Cut"
boolean6.addObjects([body27])
doc.recompute()

body28 = doc.addObject("PartDesign::Body", "Body027")
body28.BaseFeature = body21
boolean7 = body8.newObject("PartDesign::Boolean", "Boolean006")
boolean7.Type = "Cut"
boolean7.addObjects([body28])
doc.recompute()

body29 = doc.addObject("PartDesign::Body", "Body028")
body29.BaseFeature = body21
boolean8 = body9.newObject("PartDesign::Boolean", "Boolean007")
boolean8.Type = "Cut"
boolean8.addObjects([body29])
doc.recompute()

body30 = doc.addObject("PartDesign::Body", "Body029")
body30.BaseFeature = body21
boolean9 = body10.newObject("PartDesign::Boolean", "Boolean008")
boolean9.Type = "Cut"
boolean9.addObjects([body30])
doc.recompute()

body31 = doc.addObject("PartDesign::Body", "Body030")
body31.BaseFeature = body21
boolean10 = body11.newObject("PartDesign::Boolean", "Boolean009")
boolean10.Type = "Cut"
boolean10.addObjects([body31])
doc.recompute()

body32 = doc.addObject("PartDesign::Body", "Body031")
body32.BaseFeature = body21
boolean11 = body12.newObject("PartDesign::Boolean", "Boolean010")
boolean11.Type = "Cut"
boolean11.addObjects([body32])
doc.recompute()

body33 = doc.addObject("PartDesign::Body", "Body032")
body33.BaseFeature = body21
boolean12 = body13.newObject("PartDesign::Boolean", "Boolean011")
boolean12.Type = "Cut"
boolean12.addObjects([body33])
doc.recompute()

body34 = doc.addObject("PartDesign::Body", "Body033")
body34.BaseFeature = body21
boolean13 = body14.newObject("PartDesign::Boolean", "Boolean012")
boolean13.Type = "Cut"
boolean13.addObjects([body34])
doc.recompute()

body35 = doc.addObject("PartDesign::Body", "Body034")
body35.BaseFeature = body21
boolean14 = body15.newObject("PartDesign::Boolean", "Boolean013")
boolean14.Type = "Cut"
boolean14.addObjects([body35])
doc.recompute()

body36 = doc.addObject("PartDesign::Body", "Body035")
body36.BaseFeature = body21
boolean15 = body16.newObject("PartDesign::Boolean", "Boolean014")
boolean15.Type = "Cut"
boolean15.addObjects([body36])
doc.recompute()

body37 = doc.addObject("PartDesign::Body", "Body036")
body37.BaseFeature = body21
boolean16 = body17.newObject("PartDesign::Boolean", "Boolean015")
boolean16.Type = "Cut"
boolean16.addObjects([body37])
doc.recompute()

body38 = doc.addObject("PartDesign::Body", "Body037")
body38.BaseFeature = body21
boolean17 = body18.newObject("PartDesign::Boolean", "Boolean016")
boolean17.Type = "Cut"
boolean17.addObjects([body38])
doc.recompute()

body39 = doc.addObject("PartDesign::Body", "Body038")
body39.BaseFeature = body21
boolean18 = body19.newObject("PartDesign::Boolean", "Boolean017")
boolean18.Type = "Cut"
boolean18.addObjects([body39])
doc.recompute()

boolean19 = body20.newObject("PartDesign::Boolean", "Boolean018")
boolean19.Type = "Cut"
boolean19.addObjects([body21])
body40 = doc.addObject("PartDesign::Body", "Body039")

# Sketch on YZ plane
sketch22 = body40.newObject("Sketcher::SketchObject", "Sketch021")
sketch22.AttachmentSupport = (doc.getObject("YZ_Plane039"), [""])
sketch22.MapMode = "FlatFace"
sketch22.addGeometry(Part.Circle(Vector(0, 50, 0), Vector(0, 0, 1), 5), False)
sketch22.addConstraint([
    Sketcher.Constraint("PointOnObject", 0, 3, -2),
    Sketcher.Constraint("Diameter", 0, 10.0),
    Sketcher.Constraint("DistanceY", -1, 1, 0, 3, 50.0),
])
pad2 = body40.newObject("PartDesign::Pad", "Pad001")
pad2.Profile = sketch22
pad2.Length = 670
body41 = doc.addObject("PartDesign::Body", "Body040")

# Sketch on YZ plane
sketch23 = body41.newObject("Sketcher::SketchObject", "Sketch022")
sketch23.AttachmentSupport = (doc.getObject("YZ_Plane040"), [""])
sketch23.MapMode = "FlatFace"
sketch23.addGeometry(Part.Circle(Vector(-43.30127, -25, 0), Vector(0, 0, 1), 5), False)
sketch23.addConstraint([
    Sketcher.Constraint("Diameter", 0, 10.0),
    Sketcher.Constraint("DistanceY", 0, 3, -1, 1, 25.0),
    Sketcher.Constraint("DistanceX", 0, 3, -1, 1, 43.30127),
])
pad3 = body41.newObject("PartDesign::Pad", "Pad002")
pad3.Profile = sketch23
pad3.Length = 670
body42 = doc.addObject("PartDesign::Body", "Body041")

# Sketch on YZ plane
sketch24 = body42.newObject("Sketcher::SketchObject", "Sketch023")
sketch24.AttachmentSupport = (doc.getObject("YZ_Plane041"), [""])
sketch24.MapMode = "FlatFace"
sketch24.addGeometry(Part.Circle(Vector(43.30127, -25, 0), Vector(0, 0, 1), 5), False)
sketch24.addConstraint([
    Sketcher.Constraint("Diameter", 0, 10.0),
    Sketcher.Constraint("DistanceY", 0, 3, -1, 1, 25.0),
    Sketcher.Constraint("DistanceX", -1, 1, 0, 3, 43.30127),
])
pad4 = body42.newObject("PartDesign::Pad", "Pad003")
pad4.Profile = sketch24
pad4.Length = 670

doc.recompute()
